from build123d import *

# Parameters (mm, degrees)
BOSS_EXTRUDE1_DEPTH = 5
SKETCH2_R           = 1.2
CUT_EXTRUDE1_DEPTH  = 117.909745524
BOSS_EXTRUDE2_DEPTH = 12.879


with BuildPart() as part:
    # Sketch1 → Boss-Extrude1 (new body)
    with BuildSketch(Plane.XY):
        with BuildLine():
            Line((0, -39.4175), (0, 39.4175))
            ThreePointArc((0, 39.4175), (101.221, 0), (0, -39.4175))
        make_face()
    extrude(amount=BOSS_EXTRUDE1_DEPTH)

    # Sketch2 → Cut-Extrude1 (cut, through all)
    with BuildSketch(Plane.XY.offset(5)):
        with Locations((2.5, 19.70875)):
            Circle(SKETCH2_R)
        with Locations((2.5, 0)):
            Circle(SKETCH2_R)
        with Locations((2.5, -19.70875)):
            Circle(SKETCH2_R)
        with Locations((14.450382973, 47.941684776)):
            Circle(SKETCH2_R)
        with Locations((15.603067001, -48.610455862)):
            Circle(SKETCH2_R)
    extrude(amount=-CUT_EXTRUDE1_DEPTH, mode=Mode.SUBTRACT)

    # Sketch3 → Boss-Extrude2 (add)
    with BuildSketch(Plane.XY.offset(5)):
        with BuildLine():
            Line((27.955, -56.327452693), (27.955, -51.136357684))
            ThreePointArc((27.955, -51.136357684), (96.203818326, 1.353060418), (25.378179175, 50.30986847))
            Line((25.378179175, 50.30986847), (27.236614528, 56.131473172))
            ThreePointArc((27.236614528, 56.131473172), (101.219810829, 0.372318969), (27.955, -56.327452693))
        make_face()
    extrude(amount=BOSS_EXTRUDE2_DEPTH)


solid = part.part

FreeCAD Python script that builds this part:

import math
import FreeCAD as App
import Part
import Sketcher
Q = App.Units.Quantity

doc = App.newDocument("Part")
body = doc.addObject("PartDesign::Body", "Body")

# Sketch on XY plane
sketch1 = body.newObject("Sketcher::SketchObject", "Sketch")
sketch1.AttachmentSupport = (doc.getObject("XY_Plane"), [""])
sketch1.MapMode = "FlatFace"
sketch1.addGeometry([
    Part.LineSegment(App.Vector(0, 39, 0), App.Vector(0, -39, 0)),
    Part.ArcOfCircle(Part.Circle(App.Vector(43, 0, 0), App.Vector(0, 0, 1), 58), math.radians(-137), math.radians(137)),
], False)
sketch1.addConstraint([
    Sketcher.Constraint("Coincident", 0, 1, 1, 2),
    Sketcher.Constraint("Coincident", 1, 1, 0, 2),
    Sketcher.Constraint("Vertical", 0),
    Sketcher.Constraint("Symmetric", 0, 1, 1, 1, -1, 1),
    Sketcher.Constraint("DistanceY", 0, 2, 0, 1, Q("78.835 mm")),
    Sketcher.Constraint("Radius", 1, Q("58.285485 mm")),
])
pad1 = body.newObject("PartDesign::Pad", "Pad")
pad1.Profile = sketch1
pad1.Length = 5

# Sketch on XY plane
sketch2 = body.newObject("Sketcher::SketchObject", "Sketch001")
sketch2.AttachmentSupport = (doc.getObject("XY_Plane"), [""])
sketch2.MapMode = "FlatFace"
sketch2.AttachmentOffset = App.Placement(App.Vector(0, 0, 5), App.Rotation())
sketch2.addGeometry([
    Part.Circle(App.Vector(2.5, 19.7, 0), App.Vector(0, 0, 1), 1.2),  # 0
    Part.Circle(App.Vector(2.5, 0, 0), App.Vector(0, 0, 1), 1.2),  # 1
    Part.Circle(App.Vector(2.5, -19.7, 0), App.Vector(0, 0, 1), 1.2),  # 2
    Part.Circle(App.Vector(14.5, 47.9, 0), App.Vector(0, 0, 1), 1.2),  # 3
    Part.Circle(App.Vector(15.6, -48.6, 0), App.Vector(0, 0, 1), 1.2),  # 4
], False)
sketch2.addConstraint([
    Sketcher.Constraint("Equal", 0, 1),
    Sketcher.Constraint("Equal", 1, 2),
    Sketcher.Constraint("Equal", 2, 3),
    Sketcher.Constraint("Equal", 3, 4),
    Sketcher.Constraint("Symmetric", 0, 3, 2, 3, -1),
    Sketcher.Constraint("PointOnObject", 1, 3, -1),
    Sketcher.Constraint("Vertical", 0, 3, 1, 3),
    Sketcher.Constraint("Diameter", 0, Q("2.4 mm")),
    Sketcher.Constraint("DistanceX", -1, 1, 0, 3, Q("2.5 mm")),
    Sketcher.Constraint("DistanceY", 2, 3, 0, 3, Q("39.4175 mm")),
    Sketcher.Constraint("DistanceY", 4, 3, 3, 3, Q("96.552141 mm")),
    Sketcher.Constraint("DistanceX", -1, 1, 3, 3, Q("14.450383 mm")),
    Sketcher.Constraint("DistanceY", -1, 1, 3, 3, Q("47.941685 mm")),
    Sketcher.Constraint("DistanceX", -1, 1, 4, 3, Q("15.603067 mm")),
])
pocket1 = body.newObject("PartDesign::Pocket", "Pocket")
pocket1.Profile = sketch2
pocket1.Type = "ThroughAll"

# Sketch on XY plane
sketch3 = body.newObject("Sketcher::SketchObject", "Sketch002")
sketch3.AttachmentSupport = (doc.getObject("XY_Plane"), [""])
sketch3.MapMode = "FlatFace"
sketch3.AttachmentOffset = App.Placement(App.Vector(0, 0, 5), App.Rotation())
sketch3.addGeometry([
    Part.LineSegment(App.Vector(28, -51, 0), App.Vector(28, -56, 0)),
    Part.ArcOfCircle(Part.Circle(App.Vector(43, 0, 0), App.Vector(0, 0, 1), 58), math.radians(-105), math.radians(106)),
    Part.LineSegment(App.Vector(27, 56, 0), App.Vector(25, 50, 0)),
    Part.ArcOfCircle(Part.Circle(App.Vector(43, 0, 0), App.Vector(0, 0, 1), 53), math.radians(-106), math.radians(109)),
], False)
sketch3.addConstraint([
    Sketcher.Constraint("Coincident", 0, 2, 1, 1),
    Sketcher.Constraint("Coincident", 1, 2, 2, 1),
    Sketcher.Constraint("Coincident", 2, 2, 3, 2),
    Sketcher.Constraint("Coincident", 3, 1, 0, 1),
    Sketcher.Constraint("Vertical", 0),
    Sketcher.Constraint("Coincident", 3, 3, 1, 3),
    Sketcher.Constraint("PointOnObject", 1, 3, -1),
    Sketcher.Constraint("DistanceX", -1, 1, 0, 2, Q("27.955 mm")),
    Sketcher.Constraint("Radius", 1, Q("58.285485 mm")),
    Sketcher.Constraint("Radius", 3, Q("53.285485 mm")),
    Sketcher.Constraint("DistanceX", 1, 2, 1, 3, Q("15.698901 mm")),
    Sketcher.Constraint("DistanceY", 0, 2, 0, 1, Q("5.191095 mm")),
    Sketcher.Constraint("DistanceX", -1, 1, 2, 2, Q("25.378179 mm")),
])
pad2 = body.newObject("PartDesign::Pad", "Pad001")
pad2.Profile = sketch3
pad2.Length = 12.879

doc.recompute()
